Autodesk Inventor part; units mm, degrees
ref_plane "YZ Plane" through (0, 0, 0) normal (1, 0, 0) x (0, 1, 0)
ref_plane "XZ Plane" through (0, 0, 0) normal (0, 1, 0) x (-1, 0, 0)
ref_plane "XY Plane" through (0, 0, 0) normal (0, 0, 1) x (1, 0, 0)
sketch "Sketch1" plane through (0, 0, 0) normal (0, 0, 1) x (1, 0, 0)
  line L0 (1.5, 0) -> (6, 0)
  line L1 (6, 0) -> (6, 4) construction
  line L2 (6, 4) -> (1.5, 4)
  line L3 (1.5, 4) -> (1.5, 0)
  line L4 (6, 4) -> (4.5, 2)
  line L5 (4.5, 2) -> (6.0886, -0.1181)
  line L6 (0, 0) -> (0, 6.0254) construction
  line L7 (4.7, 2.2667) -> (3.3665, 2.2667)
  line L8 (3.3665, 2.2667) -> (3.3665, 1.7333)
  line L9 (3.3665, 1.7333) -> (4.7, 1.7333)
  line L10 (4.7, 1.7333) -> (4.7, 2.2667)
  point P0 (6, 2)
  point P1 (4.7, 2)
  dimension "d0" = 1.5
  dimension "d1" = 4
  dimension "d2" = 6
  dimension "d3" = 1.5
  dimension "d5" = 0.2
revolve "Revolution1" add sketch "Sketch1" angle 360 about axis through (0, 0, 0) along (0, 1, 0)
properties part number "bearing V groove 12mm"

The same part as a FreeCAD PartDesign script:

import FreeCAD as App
import Part
import Sketcher
from FreeCAD import Vector
Q = App.Units.Quantity

doc = App.newDocument("Part")
body = doc.addObject("PartDesign::Body", "Body")

# Sketch on XY plane
sketch1 = body.newObject("Sketcher::SketchObject", "Sketch")
sketch1.AttachmentSupport = (doc.getObject("XY_Plane"), [""])
sketch1.MapMode = "FlatFace"
sketch1.addGeometry([
    Part.LineSegment(Vector(1.5, 4, 0), Vector(1.5, 0, 0)),  # 0
    Part.LineSegment(Vector(1.5, 0, 0), Vector(6, 0, 0)),  # 1
    Part.LineSegment(Vector(6, 0, 0), Vector(4.7, 1.7, 0)),  # 2
    Part.LineSegment(Vector(4.7, 1.7, 0), Vector(4.7, 2.3, 0)),  # 3
    Part.LineSegment(Vector(4.7, 2.3, 0), Vector(6, 4, 0)),  # 4
    Part.LineSegment(Vector(6, 4, 0), Vector(1.5, 4, 0)),  # 5
], False)
sketch1.addConstraint([
    Sketcher.Constraint("Coincident", 0, 2, 1, 1),
    Sketcher.Constraint("Coincident", 1, 2, 2, 1),
    Sketcher.Constraint("Coincident", 2, 2, 3, 1),
    Sketcher.Constraint("Coincident", 3, 2, 4, 1),
    Sketcher.Constraint("Coincident", 4, 2, 5, 1),
    Sketcher.Constraint("Coincident", 5, 2, 0, 1),
    Sketcher.Constraint("Vertical", 0),
    Sketcher.Constraint("Horizontal", 1),
    Sketcher.Constraint("Vertical", 3),
    Sketcher.Constraint("Horizontal", 5),
    Sketcher.Constraint("PointOnObject", 0, 2, -1),
    Sketcher.Constraint("Vertical", 1, 2, 4, 2),
    Sketcher.Constraint("Equal", 2, 4),
    Sketcher.Constraint("DistanceY", 0, 2, 0, 1, Q("4 mm")),
    Sketcher.Constraint("DistanceX", -1, 1, 1, 2, Q("6 mm")),
    Sketcher.Constraint("DistanceX", -1, 1, 0, 2, Q("1.5 mm")),
    Sketcher.Constraint("DistanceX", -1, 1, 2, 2, Q("4.7 mm")),
    Sketcher.Constraint("Angle", 2, Q("126.8703 deg")),
])
revolution = body.newObject("PartDesign::Revolution", "Revolution")
revolution.Profile = sketch1
revolution.ReferenceAxis = (sketch1, ["V_Axis"])
revolution.Angle = 360

doc.recompute()
